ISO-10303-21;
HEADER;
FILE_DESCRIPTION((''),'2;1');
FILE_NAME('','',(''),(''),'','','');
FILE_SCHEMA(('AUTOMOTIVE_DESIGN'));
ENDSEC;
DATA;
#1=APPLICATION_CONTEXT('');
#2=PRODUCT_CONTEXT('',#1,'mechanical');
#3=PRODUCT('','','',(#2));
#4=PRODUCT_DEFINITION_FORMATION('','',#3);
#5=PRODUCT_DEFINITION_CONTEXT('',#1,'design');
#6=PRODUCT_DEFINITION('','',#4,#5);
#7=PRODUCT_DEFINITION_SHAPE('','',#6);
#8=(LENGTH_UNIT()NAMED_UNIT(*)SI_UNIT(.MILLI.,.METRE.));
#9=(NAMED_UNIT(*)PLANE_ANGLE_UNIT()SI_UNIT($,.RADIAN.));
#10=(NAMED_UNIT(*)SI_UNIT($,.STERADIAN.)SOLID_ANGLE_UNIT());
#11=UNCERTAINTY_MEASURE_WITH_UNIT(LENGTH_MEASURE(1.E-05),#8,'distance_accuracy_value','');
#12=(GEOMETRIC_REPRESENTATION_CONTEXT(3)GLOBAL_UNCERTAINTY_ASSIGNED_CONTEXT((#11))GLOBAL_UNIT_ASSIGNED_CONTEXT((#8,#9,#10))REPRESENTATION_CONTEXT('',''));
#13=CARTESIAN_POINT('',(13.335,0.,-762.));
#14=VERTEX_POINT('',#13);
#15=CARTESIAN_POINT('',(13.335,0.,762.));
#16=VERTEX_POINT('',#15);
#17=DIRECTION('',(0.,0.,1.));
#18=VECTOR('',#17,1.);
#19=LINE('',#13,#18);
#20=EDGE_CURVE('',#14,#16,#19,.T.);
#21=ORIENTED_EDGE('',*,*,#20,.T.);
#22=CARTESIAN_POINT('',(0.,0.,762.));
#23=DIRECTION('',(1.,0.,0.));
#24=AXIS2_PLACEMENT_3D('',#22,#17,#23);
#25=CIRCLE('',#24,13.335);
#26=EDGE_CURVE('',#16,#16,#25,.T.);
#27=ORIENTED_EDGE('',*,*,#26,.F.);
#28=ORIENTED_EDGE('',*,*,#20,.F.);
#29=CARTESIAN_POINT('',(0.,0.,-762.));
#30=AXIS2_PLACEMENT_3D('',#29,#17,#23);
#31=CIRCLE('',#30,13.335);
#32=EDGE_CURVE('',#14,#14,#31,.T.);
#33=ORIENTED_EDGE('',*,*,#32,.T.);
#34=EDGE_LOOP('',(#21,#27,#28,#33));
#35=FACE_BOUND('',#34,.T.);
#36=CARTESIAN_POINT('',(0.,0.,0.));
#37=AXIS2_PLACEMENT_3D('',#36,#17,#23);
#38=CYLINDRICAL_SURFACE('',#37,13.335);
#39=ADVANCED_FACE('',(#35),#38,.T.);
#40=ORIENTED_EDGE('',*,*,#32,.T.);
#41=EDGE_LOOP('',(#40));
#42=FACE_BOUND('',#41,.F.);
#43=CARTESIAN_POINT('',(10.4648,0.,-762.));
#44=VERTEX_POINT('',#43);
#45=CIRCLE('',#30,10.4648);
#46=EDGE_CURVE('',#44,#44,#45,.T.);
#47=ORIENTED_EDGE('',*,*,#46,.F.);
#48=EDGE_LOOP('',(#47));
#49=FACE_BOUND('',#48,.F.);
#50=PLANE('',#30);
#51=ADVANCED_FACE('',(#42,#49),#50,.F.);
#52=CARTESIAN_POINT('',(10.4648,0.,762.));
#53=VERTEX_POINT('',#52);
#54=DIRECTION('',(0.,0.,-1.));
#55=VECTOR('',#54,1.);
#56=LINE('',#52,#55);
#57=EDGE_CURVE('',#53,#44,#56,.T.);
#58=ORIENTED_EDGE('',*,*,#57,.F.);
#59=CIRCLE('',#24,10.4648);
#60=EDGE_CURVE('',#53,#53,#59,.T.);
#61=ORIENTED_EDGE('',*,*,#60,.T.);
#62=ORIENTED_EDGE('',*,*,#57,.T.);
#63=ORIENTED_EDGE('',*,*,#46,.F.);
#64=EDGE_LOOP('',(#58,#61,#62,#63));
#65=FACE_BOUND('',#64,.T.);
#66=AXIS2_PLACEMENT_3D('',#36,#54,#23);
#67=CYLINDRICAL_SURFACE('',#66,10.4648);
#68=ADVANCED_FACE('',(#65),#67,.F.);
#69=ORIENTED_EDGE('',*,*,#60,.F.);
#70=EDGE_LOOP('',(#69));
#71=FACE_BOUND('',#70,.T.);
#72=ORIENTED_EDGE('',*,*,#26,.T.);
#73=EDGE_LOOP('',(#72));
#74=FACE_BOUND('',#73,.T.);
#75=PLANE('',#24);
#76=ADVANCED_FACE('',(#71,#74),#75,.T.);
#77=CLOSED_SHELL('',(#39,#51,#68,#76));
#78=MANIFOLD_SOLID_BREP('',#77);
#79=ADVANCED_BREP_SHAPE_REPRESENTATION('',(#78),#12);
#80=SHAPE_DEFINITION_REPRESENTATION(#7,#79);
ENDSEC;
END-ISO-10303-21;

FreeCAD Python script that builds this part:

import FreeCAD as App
import Part
import Sketcher
from FreeCAD import Vector
Q = App.Units.Quantity

doc = App.newDocument("Part")
body = doc.addObject("PartDesign::Body", "Body")

sketch1 = body.newObject("Sketcher::SketchObject", "Sketch")
sketch1.AttachmentSupport = (doc.getObject("XY_Plane"), [""])
sketch1.MapMode = "FlatFace"
sketch1.addGeometry([
    Part.Circle(Vector(0, 0, 0), Vector(0, 0, 1), 13),
    Part.Circle(Vector(0, 0, 0), Vector(0, 0, 1), 10),
], False)
sketch1.addConstraint([
    Sketcher.Constraint("Coincident", 0, 3, -1, 1),
    Sketcher.Constraint("Coincident", 1, 3, -1, 1),
    Sketcher.Constraint("Diameter", 0, Q("1.05 in")),
    Sketcher.Constraint("Diameter", 1, Q("0.824 in")),
])
pad1 = body.newObject("PartDesign::Pad", "Pad")
pad1.Profile = sketch1
pad1.Length = Q("60 in")
pad1.Midplane = True

doc.recompute()
